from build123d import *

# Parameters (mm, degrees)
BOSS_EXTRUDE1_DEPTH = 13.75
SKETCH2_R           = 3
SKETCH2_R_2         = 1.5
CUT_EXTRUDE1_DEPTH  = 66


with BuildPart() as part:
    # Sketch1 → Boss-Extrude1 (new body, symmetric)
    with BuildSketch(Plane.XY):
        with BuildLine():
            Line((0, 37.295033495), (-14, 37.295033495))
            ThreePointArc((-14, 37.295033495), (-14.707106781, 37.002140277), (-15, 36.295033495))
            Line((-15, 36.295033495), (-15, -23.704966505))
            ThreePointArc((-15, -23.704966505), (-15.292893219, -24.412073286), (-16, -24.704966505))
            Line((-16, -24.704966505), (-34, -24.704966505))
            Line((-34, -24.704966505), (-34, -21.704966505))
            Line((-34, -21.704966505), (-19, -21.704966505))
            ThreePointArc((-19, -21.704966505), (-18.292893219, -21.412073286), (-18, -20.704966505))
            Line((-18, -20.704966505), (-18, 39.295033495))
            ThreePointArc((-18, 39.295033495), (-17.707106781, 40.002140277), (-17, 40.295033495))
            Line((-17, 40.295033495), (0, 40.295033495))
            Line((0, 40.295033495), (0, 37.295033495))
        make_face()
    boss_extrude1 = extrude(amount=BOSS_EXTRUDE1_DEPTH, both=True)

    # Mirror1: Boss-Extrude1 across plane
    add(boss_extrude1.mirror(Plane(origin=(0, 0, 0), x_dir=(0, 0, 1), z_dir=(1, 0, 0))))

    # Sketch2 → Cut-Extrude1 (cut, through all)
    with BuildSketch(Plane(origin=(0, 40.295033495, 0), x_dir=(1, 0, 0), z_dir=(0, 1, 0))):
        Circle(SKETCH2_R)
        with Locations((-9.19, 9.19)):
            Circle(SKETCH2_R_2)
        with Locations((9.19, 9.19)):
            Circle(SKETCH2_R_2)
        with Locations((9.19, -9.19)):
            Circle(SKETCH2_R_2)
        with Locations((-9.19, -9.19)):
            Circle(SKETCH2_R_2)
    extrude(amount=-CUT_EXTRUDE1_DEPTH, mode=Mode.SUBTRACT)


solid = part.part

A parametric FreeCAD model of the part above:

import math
import FreeCAD as App
import Part
import Sketcher
from FreeCAD import Vector

doc = App.newDocument("Part")
body = doc.addObject("PartDesign::Body", "Body")

# Sketch on XY plane
sketch1 = body.newObject("Sketcher::SketchObject", "Sketch")
sketch1.AttachmentSupport = (doc.getObject("XY_Plane"), [""])
sketch1.MapMode = "FlatFace"
sketch1.addGeometry(Part.LineSegment(Vector(-14, 37.3, 0), Vector(0, 37.3, 0)), False)
sketch1.addGeometry(Part.LineSegment(Vector(0, 37.3, 0), Vector(0, 40.3, 0)), False)
sketch1.addGeometry(Part.LineSegment(Vector(0, 40.3, 0), Vector(-17, 40.3, 0)), False)
sketch1.addGeometry(Part.ArcOfCircle(Part.Circle(Vector(-17, 39.3, 0), Vector(0, 0, 1), 1), math.radians(90), math.radians(180)), False)
sketch1.addGeometry(Part.LineSegment(Vector(-18, 39.3, 0), Vector(-18, -20.7, 0)), False)
sketch1.addGeometry(Part.ArcOfCircle(Part.Circle(Vector(-19, -20.7, 0), Vector(0, 0, 1), 1), math.radians(-90), math.radians(0)), False)
sketch1.addGeometry(Part.LineSegment(Vector(-19, -21.7, 0), Vector(-34, -21.7, 0)), False)
sketch1.addGeometry(Part.LineSegment(Vector(-34, -21.7, 0), Vector(-34, -24.7, 0)), False)
sketch1.addGeometry(Part.LineSegment(Vector(-34, -24.7, 0), Vector(-16, -24.7, 0)), False)
sketch1.addGeometry(Part.ArcOfCircle(Part.Circle(Vector(-16, -23.7, 0), Vector(0, 0, 1), 1), math.radians(-90), math.radians(0)), False)
sketch1.addGeometry(Part.LineSegment(Vector(-15, -23.7, 0), Vector(-15, 36.3, 0)), False)
sketch1.addGeometry(Part.ArcOfCircle(Part.Circle(Vector(-14, 36.3, 0), Vector(0, 0, 1), 1), math.radians(90), math.radians(180)), False)
sketch1.addConstraint(Sketcher.Constraint("Coincident", 0, 2, 1, 1))
sketch1.addConstraint(Sketcher.Constraint("Coincident", 1, 2, 2, 1))
sketch1.addConstraint(Sketcher.Constraint("Tangent", 2, 2, 3, 1))
sketch1.addConstraint(Sketcher.Constraint("Tangent", 3, 2, 4, 1))
sketch1.addConstraint(Sketcher.Constraint("Tangent", 4, 2, 5, 2))
sketch1.addConstraint(Sketcher.Constraint("Tangent", 5, 1, 6, 1))
sketch1.addConstraint(Sketcher.Constraint("Coincident", 6, 2, 7, 1))
sketch1.addConstraint(Sketcher.Constraint("Coincident", 7, 2, 8, 1))
sketch1.addConstraint(Sketcher.Constraint("Tangent", 8, 2, 9, 1))
sketch1.addConstraint(Sketcher.Constraint("Tangent", 9, 2, 10, 1))
sketch1.addConstraint(Sketcher.Constraint("Tangent", 10, 2, 11, 2))
sketch1.addConstraint(Sketcher.Constraint("Tangent", 11, 1, 0, 1))
sketch1.addConstraint(Sketcher.Constraint("Horizontal", 0))
sketch1.addConstraint(Sketcher.Constraint("Vertical", 1))
sketch1.addConstraint(Sketcher.Constraint("Horizontal", 2))
sketch1.addConstraint(Sketcher.Constraint("Vertical", 4))
sketch1.addConstraint(Sketcher.Constraint("Horizontal", 6))
sketch1.addConstraint(Sketcher.Constraint("Vertical", 7))
sketch1.addConstraint(Sketcher.Constraint("Horizontal", 8))
sketch1.addConstraint(Sketcher.Constraint("Vertical", 10))
sketch1.addConstraint(Sketcher.Constraint("Equal", 3, 5))
sketch1.addConstraint(Sketcher.Constraint("Equal", 5, 9))
sketch1.addConstraint(Sketcher.Constraint("Equal", 9, 11))
sketch1.addConstraint(Sketcher.Constraint("PointOnObject", 0, 2, -2))
sketch1.addConstraint(Sketcher.Constraint("Equal", 1, 7))
sketch1.addConstraint(Sketcher.Constraint("Radius", 3, 1.0))
sketch1.addConstraint(Sketcher.Constraint("DistanceX", 0, 1, 0, 2, 14.0))
sketch1.addConstraint(Sketcher.Constraint("DistanceX", 2, 2, 2, 1, 17.0))
sketch1.addConstraint(Sketcher.Constraint("DistanceX", 6, 2, 6, 1, 15.0))
sketch1.addConstraint(Sketcher.Constraint("DistanceY", 1, 1, 1, 2, 3.0))
sketch1.addConstraint(Sketcher.Constraint("DistanceY", 4, 2, 4, 1, 60.0))
sketch1.addConstraint(Sketcher.Constraint("DistanceY", -1, 1, 3, 3, 39.295033))
pad1 = body.newObject("PartDesign::Pad", "Pad")
pad1.Profile = sketch1
pad1.Length = 27.5
pad1.Midplane = True
doc.recompute()

mirrored = body.newObject("PartDesign::Mirrored", "Mirrored")
mirrored.Originals = [pad1]
mirrored.MirrorPlane = (doc.getObject("YZ_Plane"), [""])
body.Tip = mirrored

# Sketch on XZ plane
sketch2 = body.newObject("Sketcher::SketchObject", "Sketch001")
sketch2.AttachmentSupport = (doc.getObject("XZ_Plane"), [""])
sketch2.MapMode = "FlatFace"
sketch2.AttachmentOffset = App.Placement(Vector(0, 0, -40.295033), App.Rotation())
sketch2.addGeometry(Part.Circle(Vector(0, 0, 0), Vector(0, 0, 1), 3), False)
sketch2.addGeometry(Part.Circle(Vector(-9.2, -9.2, 0), Vector(0, 0, 1), 1.5), False)
sketch2.addGeometry(Part.Circle(Vector(9.2, -9.2, 0), Vector(0, 0, 1), 1.5), False)
sketch2.addGeometry(Part.Circle(Vector(9.2, 9.2, 0), Vector(0, 0, 1), 1.5), False)
sketch2.addGeometry(Part.Circle(Vector(-9.2, 9.2, 0), Vector(0, 0, 1), 1.5), False)
sketch2.addConstraint(Sketcher.Constraint("Coincident", 0, 3, -1, 1))
sketch2.addConstraint(Sketcher.Constraint("Equal", 1, 2))
sketch2.addConstraint(Sketcher.Constraint("Equal", 2, 3))
sketch2.addConstraint(Sketcher.Constraint("Equal", 3, 4))
sketch2.addConstraint(Sketcher.Constraint("Symmetric", 1, 3, 3, 3, -1, 1))
sketch2.addConstraint(Sketcher.Constraint("Symmetric", 2, 3, 4, 3, -1, 1))
sketch2.addConstraint(Sketcher.Constraint("Symmetric", 1, 3, 2, 3, -2))
sketch2.addConstraint(Sketcher.Constraint("Diameter", 0, 6.0))
sketch2.addConstraint(Sketcher.Constraint("Diameter", 1, 3.0))
sketch2.addConstraint(Sketcher.Constraint("DistanceX", 1, 3, -1, 1, 9.19))
sketch2.addConstraint(Sketcher.Constraint("DistanceY", 1, 3, -1, 1, 9.19))
pocket1 = body.newObject("PartDesign::Pocket", "Pocket")
pocket1.Profile = sketch2
pocket1.Type = "ThroughAll"
pocket1.Reversed = True

doc.recompute()
